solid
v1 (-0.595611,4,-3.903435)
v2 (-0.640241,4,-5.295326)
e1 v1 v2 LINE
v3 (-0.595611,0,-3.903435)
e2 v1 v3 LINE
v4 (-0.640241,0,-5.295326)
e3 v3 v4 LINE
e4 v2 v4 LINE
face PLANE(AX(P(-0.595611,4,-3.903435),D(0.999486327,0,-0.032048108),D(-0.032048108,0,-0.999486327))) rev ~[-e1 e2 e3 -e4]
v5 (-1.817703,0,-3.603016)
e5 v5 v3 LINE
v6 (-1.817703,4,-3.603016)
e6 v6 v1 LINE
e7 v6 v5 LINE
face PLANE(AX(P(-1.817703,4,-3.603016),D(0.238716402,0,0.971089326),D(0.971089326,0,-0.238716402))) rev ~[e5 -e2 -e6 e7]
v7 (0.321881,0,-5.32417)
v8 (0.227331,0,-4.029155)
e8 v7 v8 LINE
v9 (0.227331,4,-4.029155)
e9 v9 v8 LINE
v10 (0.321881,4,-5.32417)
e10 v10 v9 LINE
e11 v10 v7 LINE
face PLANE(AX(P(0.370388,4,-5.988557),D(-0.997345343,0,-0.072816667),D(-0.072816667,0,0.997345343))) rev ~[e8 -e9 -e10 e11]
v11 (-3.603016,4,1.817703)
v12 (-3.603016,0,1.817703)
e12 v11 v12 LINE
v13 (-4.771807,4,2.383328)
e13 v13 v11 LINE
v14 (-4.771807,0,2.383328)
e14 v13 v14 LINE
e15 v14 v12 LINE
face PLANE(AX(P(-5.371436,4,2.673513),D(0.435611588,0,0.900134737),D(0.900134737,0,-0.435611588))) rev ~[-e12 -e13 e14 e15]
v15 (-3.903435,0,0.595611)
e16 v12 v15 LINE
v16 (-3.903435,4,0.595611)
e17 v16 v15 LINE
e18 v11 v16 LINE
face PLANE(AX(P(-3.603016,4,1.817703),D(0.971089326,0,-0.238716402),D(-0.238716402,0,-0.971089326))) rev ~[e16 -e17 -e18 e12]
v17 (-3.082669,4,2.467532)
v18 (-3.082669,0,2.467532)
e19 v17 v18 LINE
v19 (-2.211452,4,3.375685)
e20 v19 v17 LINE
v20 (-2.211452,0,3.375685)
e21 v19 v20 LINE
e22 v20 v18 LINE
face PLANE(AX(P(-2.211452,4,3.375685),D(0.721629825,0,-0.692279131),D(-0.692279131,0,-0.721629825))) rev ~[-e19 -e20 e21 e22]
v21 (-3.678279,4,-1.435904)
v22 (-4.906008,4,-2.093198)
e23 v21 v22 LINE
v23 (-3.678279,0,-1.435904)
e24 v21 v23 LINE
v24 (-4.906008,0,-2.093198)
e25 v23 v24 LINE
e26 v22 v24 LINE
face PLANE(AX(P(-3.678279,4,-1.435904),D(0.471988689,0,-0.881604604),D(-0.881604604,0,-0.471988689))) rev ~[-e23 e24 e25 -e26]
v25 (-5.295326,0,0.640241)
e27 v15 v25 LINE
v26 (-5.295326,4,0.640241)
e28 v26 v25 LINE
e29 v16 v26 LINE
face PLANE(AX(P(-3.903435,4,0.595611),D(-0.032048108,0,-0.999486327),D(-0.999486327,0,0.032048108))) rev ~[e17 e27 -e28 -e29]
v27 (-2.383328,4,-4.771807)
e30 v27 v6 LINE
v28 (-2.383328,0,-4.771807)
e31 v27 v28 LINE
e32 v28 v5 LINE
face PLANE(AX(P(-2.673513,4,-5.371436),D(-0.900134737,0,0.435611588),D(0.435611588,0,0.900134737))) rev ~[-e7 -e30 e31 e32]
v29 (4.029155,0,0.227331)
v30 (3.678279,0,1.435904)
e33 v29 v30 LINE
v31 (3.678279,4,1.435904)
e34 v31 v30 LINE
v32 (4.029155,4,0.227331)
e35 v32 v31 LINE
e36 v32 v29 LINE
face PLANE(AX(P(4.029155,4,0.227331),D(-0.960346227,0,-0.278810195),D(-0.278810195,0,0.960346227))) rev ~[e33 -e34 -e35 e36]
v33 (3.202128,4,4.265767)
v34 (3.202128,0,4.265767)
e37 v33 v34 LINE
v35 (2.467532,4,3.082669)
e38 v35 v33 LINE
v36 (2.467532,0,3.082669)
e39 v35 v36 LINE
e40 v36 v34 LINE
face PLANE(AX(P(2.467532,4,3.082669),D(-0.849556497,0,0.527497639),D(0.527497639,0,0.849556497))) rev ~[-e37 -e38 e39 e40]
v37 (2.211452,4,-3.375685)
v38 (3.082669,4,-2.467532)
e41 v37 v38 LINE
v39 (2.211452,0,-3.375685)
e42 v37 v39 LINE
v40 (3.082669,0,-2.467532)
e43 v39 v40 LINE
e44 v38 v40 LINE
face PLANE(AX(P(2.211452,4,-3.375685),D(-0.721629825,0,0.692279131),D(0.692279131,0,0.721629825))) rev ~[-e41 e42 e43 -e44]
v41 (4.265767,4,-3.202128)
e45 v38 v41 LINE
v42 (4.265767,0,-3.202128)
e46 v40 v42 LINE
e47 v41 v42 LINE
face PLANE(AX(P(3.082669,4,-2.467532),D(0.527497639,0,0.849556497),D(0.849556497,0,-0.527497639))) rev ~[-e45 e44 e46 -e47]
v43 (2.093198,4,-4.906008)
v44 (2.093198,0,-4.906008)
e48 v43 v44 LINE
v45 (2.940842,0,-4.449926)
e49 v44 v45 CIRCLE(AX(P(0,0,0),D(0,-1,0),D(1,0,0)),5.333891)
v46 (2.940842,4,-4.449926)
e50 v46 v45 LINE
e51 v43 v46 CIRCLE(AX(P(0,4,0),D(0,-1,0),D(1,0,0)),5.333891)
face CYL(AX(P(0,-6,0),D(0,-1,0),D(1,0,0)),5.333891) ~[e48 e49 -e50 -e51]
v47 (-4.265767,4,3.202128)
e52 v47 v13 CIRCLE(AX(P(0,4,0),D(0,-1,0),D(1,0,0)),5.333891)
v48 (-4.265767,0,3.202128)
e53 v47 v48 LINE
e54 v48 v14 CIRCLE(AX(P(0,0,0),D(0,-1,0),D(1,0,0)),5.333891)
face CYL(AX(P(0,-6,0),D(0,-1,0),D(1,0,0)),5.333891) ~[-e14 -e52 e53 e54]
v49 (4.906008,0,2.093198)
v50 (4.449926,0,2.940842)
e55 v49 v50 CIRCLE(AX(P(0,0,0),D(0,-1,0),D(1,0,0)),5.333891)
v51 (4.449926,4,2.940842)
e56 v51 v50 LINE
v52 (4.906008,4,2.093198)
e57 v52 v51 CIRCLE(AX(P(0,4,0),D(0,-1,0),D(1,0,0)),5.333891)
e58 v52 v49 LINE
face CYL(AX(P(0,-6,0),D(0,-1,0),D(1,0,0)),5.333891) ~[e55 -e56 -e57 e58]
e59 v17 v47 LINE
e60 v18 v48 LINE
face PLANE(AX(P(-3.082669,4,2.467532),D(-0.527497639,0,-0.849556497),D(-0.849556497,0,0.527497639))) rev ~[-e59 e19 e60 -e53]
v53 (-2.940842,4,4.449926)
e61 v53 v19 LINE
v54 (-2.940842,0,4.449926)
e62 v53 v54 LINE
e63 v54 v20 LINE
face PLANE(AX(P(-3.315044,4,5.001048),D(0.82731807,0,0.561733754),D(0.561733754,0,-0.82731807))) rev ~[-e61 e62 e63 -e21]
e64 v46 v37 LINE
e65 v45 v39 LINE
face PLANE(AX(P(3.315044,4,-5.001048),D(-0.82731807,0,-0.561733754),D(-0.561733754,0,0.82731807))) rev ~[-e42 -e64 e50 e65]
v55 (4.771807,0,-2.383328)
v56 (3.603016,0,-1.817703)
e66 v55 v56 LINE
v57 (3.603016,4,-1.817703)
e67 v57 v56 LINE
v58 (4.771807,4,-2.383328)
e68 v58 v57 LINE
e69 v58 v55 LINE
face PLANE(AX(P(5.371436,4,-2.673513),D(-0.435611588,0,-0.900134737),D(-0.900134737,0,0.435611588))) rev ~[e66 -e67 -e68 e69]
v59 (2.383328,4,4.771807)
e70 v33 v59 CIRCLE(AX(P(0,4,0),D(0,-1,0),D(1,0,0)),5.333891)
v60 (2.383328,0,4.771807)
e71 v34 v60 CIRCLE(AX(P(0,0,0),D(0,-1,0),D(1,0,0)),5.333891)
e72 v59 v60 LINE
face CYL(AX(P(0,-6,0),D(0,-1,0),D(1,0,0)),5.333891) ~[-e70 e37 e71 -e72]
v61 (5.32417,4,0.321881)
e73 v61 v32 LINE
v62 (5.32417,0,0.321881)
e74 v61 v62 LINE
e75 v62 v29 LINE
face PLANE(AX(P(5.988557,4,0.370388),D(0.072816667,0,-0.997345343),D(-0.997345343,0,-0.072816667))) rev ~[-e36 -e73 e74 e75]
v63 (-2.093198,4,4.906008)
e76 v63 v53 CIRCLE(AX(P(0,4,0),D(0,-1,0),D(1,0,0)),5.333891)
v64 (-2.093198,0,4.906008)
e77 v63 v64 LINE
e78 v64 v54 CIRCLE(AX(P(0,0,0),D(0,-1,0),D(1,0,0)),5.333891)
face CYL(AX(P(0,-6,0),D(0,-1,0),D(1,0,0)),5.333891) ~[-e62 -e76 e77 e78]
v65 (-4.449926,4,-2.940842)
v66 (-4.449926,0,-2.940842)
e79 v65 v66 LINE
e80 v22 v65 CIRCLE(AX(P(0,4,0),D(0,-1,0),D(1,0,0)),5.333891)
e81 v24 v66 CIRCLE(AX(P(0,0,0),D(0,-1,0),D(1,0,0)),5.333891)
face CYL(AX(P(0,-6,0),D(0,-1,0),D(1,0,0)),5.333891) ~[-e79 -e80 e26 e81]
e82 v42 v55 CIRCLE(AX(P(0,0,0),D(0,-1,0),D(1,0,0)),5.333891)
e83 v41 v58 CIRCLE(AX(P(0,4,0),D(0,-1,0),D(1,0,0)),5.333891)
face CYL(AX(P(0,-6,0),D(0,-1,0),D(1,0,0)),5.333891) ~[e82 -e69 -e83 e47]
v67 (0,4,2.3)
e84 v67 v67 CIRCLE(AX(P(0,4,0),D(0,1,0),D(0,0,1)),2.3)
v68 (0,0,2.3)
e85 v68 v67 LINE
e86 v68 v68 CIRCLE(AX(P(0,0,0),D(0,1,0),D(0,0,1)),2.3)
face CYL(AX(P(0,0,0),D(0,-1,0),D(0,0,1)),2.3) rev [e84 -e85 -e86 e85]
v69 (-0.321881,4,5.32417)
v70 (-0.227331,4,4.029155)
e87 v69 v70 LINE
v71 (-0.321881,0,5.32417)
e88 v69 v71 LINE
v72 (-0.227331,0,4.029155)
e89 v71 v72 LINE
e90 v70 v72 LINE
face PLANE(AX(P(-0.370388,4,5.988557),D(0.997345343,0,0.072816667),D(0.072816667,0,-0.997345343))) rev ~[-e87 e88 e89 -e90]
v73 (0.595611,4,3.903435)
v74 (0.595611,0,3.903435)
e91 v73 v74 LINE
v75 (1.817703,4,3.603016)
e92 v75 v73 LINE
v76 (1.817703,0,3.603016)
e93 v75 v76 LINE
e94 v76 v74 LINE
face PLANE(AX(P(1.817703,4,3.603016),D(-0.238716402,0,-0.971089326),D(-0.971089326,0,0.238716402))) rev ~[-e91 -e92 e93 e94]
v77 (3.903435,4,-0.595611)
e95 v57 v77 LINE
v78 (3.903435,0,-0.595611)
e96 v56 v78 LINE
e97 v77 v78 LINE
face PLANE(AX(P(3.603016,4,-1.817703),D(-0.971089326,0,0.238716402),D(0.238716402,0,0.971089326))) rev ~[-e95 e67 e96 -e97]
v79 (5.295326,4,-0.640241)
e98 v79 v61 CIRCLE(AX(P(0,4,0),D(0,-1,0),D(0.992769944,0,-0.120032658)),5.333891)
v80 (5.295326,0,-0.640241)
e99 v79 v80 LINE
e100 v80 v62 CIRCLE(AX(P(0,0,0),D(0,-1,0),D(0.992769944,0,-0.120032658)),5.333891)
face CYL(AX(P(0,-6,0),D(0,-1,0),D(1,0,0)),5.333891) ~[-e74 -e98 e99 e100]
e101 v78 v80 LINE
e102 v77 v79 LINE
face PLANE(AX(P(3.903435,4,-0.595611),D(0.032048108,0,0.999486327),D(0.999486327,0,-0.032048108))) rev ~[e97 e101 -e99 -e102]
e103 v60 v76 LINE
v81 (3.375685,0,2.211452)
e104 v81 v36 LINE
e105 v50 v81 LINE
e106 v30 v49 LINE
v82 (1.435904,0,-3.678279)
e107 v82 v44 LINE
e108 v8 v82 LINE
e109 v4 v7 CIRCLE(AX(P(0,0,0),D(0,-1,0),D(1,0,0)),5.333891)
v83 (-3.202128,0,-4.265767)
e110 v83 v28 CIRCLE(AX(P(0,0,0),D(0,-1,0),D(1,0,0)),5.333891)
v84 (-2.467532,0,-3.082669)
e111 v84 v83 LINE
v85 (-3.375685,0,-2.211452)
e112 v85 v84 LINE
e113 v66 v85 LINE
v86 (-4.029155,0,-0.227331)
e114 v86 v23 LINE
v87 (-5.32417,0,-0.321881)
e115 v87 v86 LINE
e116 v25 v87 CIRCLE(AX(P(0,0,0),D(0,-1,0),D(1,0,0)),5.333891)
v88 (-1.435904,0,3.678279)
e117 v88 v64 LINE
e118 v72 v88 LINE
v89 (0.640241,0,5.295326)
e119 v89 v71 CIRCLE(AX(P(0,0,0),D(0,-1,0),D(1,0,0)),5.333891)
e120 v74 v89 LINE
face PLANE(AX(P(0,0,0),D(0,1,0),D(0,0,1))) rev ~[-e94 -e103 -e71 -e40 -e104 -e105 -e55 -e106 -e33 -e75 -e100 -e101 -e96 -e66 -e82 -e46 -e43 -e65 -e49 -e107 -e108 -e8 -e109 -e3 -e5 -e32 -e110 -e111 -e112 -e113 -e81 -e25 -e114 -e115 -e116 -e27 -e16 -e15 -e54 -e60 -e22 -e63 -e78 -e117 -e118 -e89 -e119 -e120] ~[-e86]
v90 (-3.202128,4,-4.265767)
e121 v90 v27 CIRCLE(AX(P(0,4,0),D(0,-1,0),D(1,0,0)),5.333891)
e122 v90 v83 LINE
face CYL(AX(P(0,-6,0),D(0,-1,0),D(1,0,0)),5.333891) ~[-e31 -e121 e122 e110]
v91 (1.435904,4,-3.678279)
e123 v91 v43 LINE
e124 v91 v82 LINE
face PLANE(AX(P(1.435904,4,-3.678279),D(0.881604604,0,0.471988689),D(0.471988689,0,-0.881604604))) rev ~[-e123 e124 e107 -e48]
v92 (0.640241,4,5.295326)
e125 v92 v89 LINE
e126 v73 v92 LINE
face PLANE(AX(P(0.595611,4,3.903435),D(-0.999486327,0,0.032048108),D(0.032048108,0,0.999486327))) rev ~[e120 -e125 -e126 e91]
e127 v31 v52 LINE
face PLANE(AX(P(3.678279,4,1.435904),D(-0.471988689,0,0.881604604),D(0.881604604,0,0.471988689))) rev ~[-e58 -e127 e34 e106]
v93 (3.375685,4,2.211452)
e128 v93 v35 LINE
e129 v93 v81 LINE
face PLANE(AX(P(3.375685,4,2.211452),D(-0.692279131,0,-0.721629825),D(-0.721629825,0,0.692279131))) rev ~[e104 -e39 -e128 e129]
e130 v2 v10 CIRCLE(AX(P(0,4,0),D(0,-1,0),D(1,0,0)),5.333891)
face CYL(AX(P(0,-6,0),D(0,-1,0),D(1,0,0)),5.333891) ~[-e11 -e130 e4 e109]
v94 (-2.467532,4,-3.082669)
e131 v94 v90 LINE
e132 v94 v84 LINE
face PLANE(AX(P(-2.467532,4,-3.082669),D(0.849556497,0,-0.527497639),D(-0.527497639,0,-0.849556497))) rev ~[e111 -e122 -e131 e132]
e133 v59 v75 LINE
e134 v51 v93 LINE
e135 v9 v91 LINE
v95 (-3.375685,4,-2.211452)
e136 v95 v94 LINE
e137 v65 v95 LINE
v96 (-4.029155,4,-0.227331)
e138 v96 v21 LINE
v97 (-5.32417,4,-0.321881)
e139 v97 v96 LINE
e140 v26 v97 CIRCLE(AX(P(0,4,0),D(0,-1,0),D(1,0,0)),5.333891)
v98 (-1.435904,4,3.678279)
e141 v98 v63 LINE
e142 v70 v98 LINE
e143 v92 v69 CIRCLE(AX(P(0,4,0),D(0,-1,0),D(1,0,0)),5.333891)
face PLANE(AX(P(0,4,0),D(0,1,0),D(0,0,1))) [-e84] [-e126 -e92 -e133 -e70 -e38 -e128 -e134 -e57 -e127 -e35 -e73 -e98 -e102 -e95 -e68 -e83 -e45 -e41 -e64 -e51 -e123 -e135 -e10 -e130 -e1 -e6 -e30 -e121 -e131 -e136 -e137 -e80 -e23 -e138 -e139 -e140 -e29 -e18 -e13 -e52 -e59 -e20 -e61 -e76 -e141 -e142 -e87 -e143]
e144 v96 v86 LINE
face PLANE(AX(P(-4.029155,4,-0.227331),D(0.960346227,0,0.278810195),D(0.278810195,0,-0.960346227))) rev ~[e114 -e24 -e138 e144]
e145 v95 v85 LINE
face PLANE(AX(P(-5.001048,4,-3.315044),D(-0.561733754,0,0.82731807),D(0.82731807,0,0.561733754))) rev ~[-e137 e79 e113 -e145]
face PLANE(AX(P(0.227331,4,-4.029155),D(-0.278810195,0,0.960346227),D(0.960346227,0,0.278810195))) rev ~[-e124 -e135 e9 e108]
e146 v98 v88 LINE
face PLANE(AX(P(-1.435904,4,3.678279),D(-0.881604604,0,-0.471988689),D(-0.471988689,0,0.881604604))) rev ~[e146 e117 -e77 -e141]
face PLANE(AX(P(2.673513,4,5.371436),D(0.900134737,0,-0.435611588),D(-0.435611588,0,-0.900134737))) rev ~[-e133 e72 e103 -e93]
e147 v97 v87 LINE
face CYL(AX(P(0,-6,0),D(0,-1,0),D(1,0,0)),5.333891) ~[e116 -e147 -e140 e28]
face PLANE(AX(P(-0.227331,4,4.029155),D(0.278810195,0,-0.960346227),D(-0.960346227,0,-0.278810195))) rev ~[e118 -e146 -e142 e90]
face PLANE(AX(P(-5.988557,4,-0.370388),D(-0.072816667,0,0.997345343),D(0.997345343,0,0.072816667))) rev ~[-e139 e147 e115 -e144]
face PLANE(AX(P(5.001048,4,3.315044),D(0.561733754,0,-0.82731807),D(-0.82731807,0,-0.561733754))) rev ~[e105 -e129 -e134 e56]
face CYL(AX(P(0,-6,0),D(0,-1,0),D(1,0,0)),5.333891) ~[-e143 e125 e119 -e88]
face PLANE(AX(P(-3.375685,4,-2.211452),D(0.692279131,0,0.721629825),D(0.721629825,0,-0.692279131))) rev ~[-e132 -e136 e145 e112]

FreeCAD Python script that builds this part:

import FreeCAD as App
import Part
import Sketcher
from FreeCAD import Vector


def add_polygon(sketch, points):
    """Adds a closed chain of lines whose ends are joined by coincident constraints."""
    first, n = sketch.GeometryCount, len(points)
    for a, b in zip(points, points[1:] + points[:1]):
        sketch.addGeometry(Part.LineSegment(App.Vector(*a, 0), App.Vector(*b, 0)), False)
    for i in range(n):
        sketch.addConstraint(Sketcher.Constraint("Coincident", first + i, 2, first + (i + 1) % n, 1))

doc = App.newDocument("Part")
params = doc.addObject("Spreadsheet::Sheet", "Params")
for row, (alias, value) in enumerate([
    ("sketch1_diameter", "12 mm"),
    ("sketch1_diameter2", "4.6 mm"),
    ("pad1_length", "4 mm"),
    ("pocket1_length", "4 mm"),
], start=1):
    params.set(f"A{row}", alias)
    params.set(f"B{row}", "=" + value)
    params.setAlias(f"B{row}", alias)

body = doc.addObject("PartDesign::Body", "Body")

# Sketch on XZ plane
sketch1 = doc.addObject("Sketcher::SketchObject", "Sketch")
body.addObject(sketch1)
sketch1.AttachmentSupport = (doc.XZ_Plane, [""])
sketch1.MapMode = "FlatFace"
sketch1.addGeometry([
    Part.Circle(Vector(0, 0, 0), Vector(0, 0, 1), 6),
    Part.Circle(Vector(0, 0, 0), Vector(0, 0, 1), 2.3),
], False)
sketch1.addConstraint([
    Sketcher.Constraint("Coincident", 0, 3, -1, 1),
    Sketcher.Constraint("Coincident", 1, 3, -1, 1),
    Sketcher.Constraint("Diameter", 0, 12.0),
    Sketcher.Constraint("Diameter", 1, 4.6),
])
sketch1.setExpression("Constraints[2]", "Params.sketch1_diameter")
sketch1.setExpression("Constraints[3]", "Params.sketch1_diameter2")
pad1 = doc.addObject("PartDesign::Pad", "Pad")
body.addObject(pad1)
pad1.Profile = sketch1
pad1.setExpression("Length", "Params.pad1_length")
pad1.Reversed = True

# Sketch on XZ plane
sketch2 = doc.addObject("Sketcher::SketchObject", "Sketch001")
body.addObject(sketch2)
sketch2.AttachmentSupport = (doc.XZ_Plane, [""])
sketch2.MapMode = "FlatFace"
sketch2.AttachmentOffset = App.Placement(Vector(0, 0, -4), App.Rotation())
add_polygon(sketch2, [(0.370388, -5.988557), (0.227331, -4.029155), (1.435904, -3.678279), (2.408686, -5.495292), (1.792659, -6.071811)])  # lines 0-4
add_polygon(sketch2, [(3.315044, -5.001048), (2.211452, -3.375685), (3.082669, -2.467532), (4.833629, -3.554719), (4.588394, -4.362013)])  # lines 5-9
add_polygon(sketch2, [(5.371436, -2.673513), (3.603016, -1.817703), (3.903435, -0.595611), (5.963405, -0.661663), (6.154672, -1.483417)])  # lines 10-14
add_polygon(sketch2, [(5.988557, 0.370388), (4.029155, 0.227331), (3.678279, 1.435904), (5.495292, 2.408686), (6.071811, 1.792659)])  # lines 15-19
add_polygon(sketch2, [(5.001048, 3.315044), (3.375685, 2.211452), (2.467532, 3.082669), (3.554719, 4.833629), (4.362013, 4.588394)])  # lines 20-24
add_polygon(sketch2, [(2.673513, 5.371436), (1.817703, 3.603016), (0.595611, 3.903435), (0.661663, 5.963405), (1.483417, 6.154672)])  # lines 25-29
add_polygon(sketch2, [(-0.370388, 5.988557), (-0.227331, 4.029155), (-1.435904, 3.678279), (-2.408686, 5.495292), (-1.792659, 6.071811)])  # lines 30-34
add_polygon(sketch2, [(-3.315044, 5.001048), (-2.211452, 3.375685), (-3.082669, 2.467532), (-4.833629, 3.554719), (-4.588394, 4.362013)])  # lines 35-39
add_polygon(sketch2, [(-5.371436, 2.673513), (-3.603016, 1.817703), (-3.903435, 0.595611), (-5.963405, 0.661663), (-6.154672, 1.483417)])  # lines 40-44
add_polygon(sketch2, [(-5.988557, -0.370388), (-4.029155, -0.227331), (-3.678279, -1.435904), (-5.495292, -2.408686), (-6.071811, -1.792659)])  # lines 45-49
add_polygon(sketch2, [(-5.001048, -3.315044), (-3.375685, -2.211452), (-2.467532, -3.082669), (-3.554719, -4.833629), (-4.362013, -4.588394)])  # lines 50-54
add_polygon(sketch2, [(-2.673513, -5.371436), (-1.817703, -3.603016), (-0.595611, -3.903435), (-0.661663, -5.963405), (-1.483417, -6.154672)])  # lines 55-59
sketch2.addConstraint([
    Sketcher.Constraint("Symmetric", 0, 2, 30, 2, -1, 1),
    Sketcher.Constraint("Symmetric", 1, 2, 31, 2, -1, 1),
    Sketcher.Constraint("Symmetric", 2, 2, 32, 2, -1, 1),
    Sketcher.Constraint("Symmetric", 3, 2, 33, 2, -1, 1),
    Sketcher.Constraint("Symmetric", 4, 2, 34, 2, -1, 1),
    Sketcher.Constraint("Symmetric", 5, 2, 35, 2, -1, 1),
    Sketcher.Constraint("Symmetric", 6, 2, 36, 2, -1, 1),
    Sketcher.Constraint("Symmetric", 7, 2, 37, 2, -1, 1),
    Sketcher.Constraint("Symmetric", 8, 2, 38, 2, -1, 1),
    Sketcher.Constraint("Symmetric", 9, 2, 39, 2, -1, 1),
    Sketcher.Constraint("Symmetric", 10, 2, 40, 2, -1, 1),
    Sketcher.Constraint("Symmetric", 11, 2, 41, 2, -1, 1),
    Sketcher.Constraint("Symmetric", 12, 2, 42, 2, -1, 1),
    Sketcher.Constraint("Symmetric", 13, 2, 43, 2, -1, 1),
    Sketcher.Constraint("Symmetric", 14, 2, 44, 2, -1, 1),
    Sketcher.Constraint("Symmetric", 15, 2, 45, 2, -1, 1),
    Sketcher.Constraint("Symmetric", 16, 2, 46, 2, -1, 1),
    Sketcher.Constraint("Symmetric", 17, 2, 47, 2, -1, 1),
    Sketcher.Constraint("Symmetric", 18, 2, 48, 2, -1, 1),
    Sketcher.Constraint("Symmetric", 19, 2, 49, 2, -1, 1),
    Sketcher.Constraint("Symmetric", 20, 2, 50, 2, -1, 1),
    Sketcher.Constraint("Symmetric", 21, 2, 51, 2, -1, 1),
    Sketcher.Constraint("Symmetric", 22, 2, 52, 2, -1, 1),
    Sketcher.Constraint("Symmetric", 23, 2, 53, 2, -1, 1),
    Sketcher.Constraint("Symmetric", 24, 2, 54, 2, -1, 1),
    Sketcher.Constraint("Symmetric", 25, 2, 55, 2, -1, 1),
    Sketcher.Constraint("Symmetric", 26, 2, 56, 2, -1, 1),
    Sketcher.Constraint("Symmetric", 27, 2, 57, 2, -1, 1),
    Sketcher.Constraint("Symmetric", 28, 2, 58, 2, -1, 1),
    Sketcher.Constraint("Symmetric", 29, 2, 59, 2, -1, 1),
    Sketcher.Constraint("Perpendicular", 0, 15),
    Sketcher.Constraint("Perpendicular", 1, 16),
    Sketcher.Constraint("Perpendicular", 2, 17),
    Sketcher.Constraint("Perpendicular", 3, 18),
    Sketcher.Constraint("Perpendicular", 4, 19),
    Sketcher.Constraint("Perpendicular", 5, 20),
    Sketcher.Constraint("Perpendicular", 6, 21),
    Sketcher.Constraint("Perpendicular", 7, 22),
    Sketcher.Constraint("Perpendicular", 8, 23),
    Sketcher.Constraint("Perpendicular", 9, 24),
    Sketcher.Constraint("Perpendicular", 10, 25),
    Sketcher.Constraint("Perpendicular", 11, 26),
    Sketcher.Constraint("Perpendicular", 12, 27),
    Sketcher.Constraint("Perpendicular", 13, 28),
    Sketcher.Constraint("Perpendicular", 14, 29),
    Sketcher.Constraint("Equal", 0, 5),
    Sketcher.Constraint("Equal", 1, 6),
    Sketcher.Constraint("Equal", 2, 7),
    Sketcher.Constraint("Equal", 3, 8),
    Sketcher.Constraint("Equal", 4, 9),
    Sketcher.Constraint("Equal", 5, 10),
    Sketcher.Constraint("Equal", 6, 11),
    Sketcher.Constraint("Equal", 7, 12),
    Sketcher.Constraint("Equal", 8, 13),
    Sketcher.Constraint("Equal", 9, 14),
    Sketcher.Constraint("Equal", 10, 15),
    Sketcher.Constraint("Equal", 11, 16),
    Sketcher.Constraint("Equal", 12, 17),
    Sketcher.Constraint("Equal", 15, 20),
    Sketcher.Constraint("Equal", 16, 21),
    Sketcher.Constraint("Equal", 17, 22),
    Sketcher.Constraint("Equal", 20, 25),
    Sketcher.Constraint("Equal", 21, 26),
    Sketcher.Constraint("Equal", 22, 27),
    Sketcher.Constraint("DistanceX", 56, 2, 4, 2, 0.965999),
    Sketcher.Constraint("DistanceY", 4, 2, 0, 2, 1.959402),
    Sketcher.Constraint("DistanceY", 8, 2, 14, 2, 1.6885),
    Sketcher.Constraint("DistanceX", 29, 2, 23, 2, 1.6885),
    Sketcher.Constraint("Distance", 2, 2.061029),
    Sketcher.Constraint("Distance", 3, 0.84372),
    Sketcher.Constraint("DistanceX", -1, 1, 0, 2, 0.227331),
    Sketcher.Constraint("DistanceY", 1, 2, -1, 1, 3.678279),
    Sketcher.Constraint("DistanceY", 2, 2, -1, 1, 5.495292),
    Sketcher.Constraint("DistanceX", -1, 1, 3, 2, 1.792659),
    Sketcher.Constraint("DistanceY", 3, 2, -1, 1, 6.071811),
    Sketcher.Constraint("DistanceX", -1, 1, 4, 2, 0.370388),
    Sketcher.Constraint("DistanceX", -1, 1, 6, 2, 3.082669),
    Sketcher.Constraint("DistanceY", 6, 2, -1, 1, 2.467532),
    Sketcher.Constraint("DistanceX", -1, 1, 7, 2, 4.833629),
    Sketcher.Constraint("DistanceY", 9, 2, -1, 1, 5.001048),
    Sketcher.Constraint("DistanceY", 11, 2, -1, 1, 0.595611),
    Sketcher.Constraint("DistanceY", -1, 1, 15, 2, 0.227331),
    Sketcher.Constraint("DistanceX", -1, 1, 16, 2, 3.678279),
    Sketcher.Constraint("DistanceY", -1, 1, 21, 2, 3.082669),
    Sketcher.Constraint("DistanceX", 1, 2, 5, 2, 0.775549),
    Sketcher.Constraint("DistanceY", 0, 2, 5, 2, 0.65347),
    Sketcher.Constraint("DistanceY", 6, 2, 10, 2, 0.649829),
    Sketcher.Constraint("DistanceX", 11, 2, 8, 2, 0.684959),
    Sketcher.Constraint("DistanceX", 11, 2, 12, 2, 2.05997),
    Sketcher.Constraint("DistanceY", 26, 2, 23, 2, 0.684959),
])
pocket1 = doc.addObject("PartDesign::Pocket", "Pocket")
body.addObject(pocket1)
pocket1.Profile = sketch2
pocket1.setExpression("Length", "Params.pocket1_length")
pocket1.Reversed = True

# Sketch on XZ plane
sketch3 = doc.addObject("Sketcher::SketchObject", "Sketch002")
body.addObject(sketch3)
sketch3.AttachmentSupport = (doc.XZ_Plane, [""])
sketch3.MapMode = "FlatFace"
sketch3.AttachmentOffset = App.Placement(Vector(0, 0, -4), App.Rotation())
sketch3.addGeometry([
    Part.Circle(Vector(0, 0, 0), Vector(0, 0, 1), 6.951264),
    Part.Circle(Vector(0, 0, 0), Vector(0, 0, 1), 5.333891),
], False)
sketch3.addConstraint([
    Sketcher.Constraint("Coincident", 0, 3, -1, 1),
    Sketcher.Constraint("Coincident", 1, 3, -1, 1),
    Sketcher.Constraint("Diameter", 0, 13.902528),
    Sketcher.Constraint("Diameter", 1, 10.667782),
])
pocket2 = doc.addObject("PartDesign::Pocket", "Pocket001")
body.addObject(pocket2)
pocket2.Profile = sketch3
pocket2.Type = "ThroughAll"
pocket2.Midplane = True

doc.recompute()
